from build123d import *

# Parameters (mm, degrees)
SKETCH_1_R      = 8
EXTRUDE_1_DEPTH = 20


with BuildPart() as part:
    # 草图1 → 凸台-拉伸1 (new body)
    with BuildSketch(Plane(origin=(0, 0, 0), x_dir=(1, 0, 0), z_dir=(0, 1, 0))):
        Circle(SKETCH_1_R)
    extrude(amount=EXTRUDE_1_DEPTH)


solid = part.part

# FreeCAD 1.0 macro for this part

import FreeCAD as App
import Part
import Sketcher

V = App.Vector
Q = App.Units.Quantity

doc = App.newDocument("Part")
body = doc.addObject("PartDesign::Body", "Body")

# Sketch on XZ plane
sketch1 = doc.addObject("Sketcher::SketchObject", "Sketch")
body.addObject(sketch1)
sketch1.AttachmentSupport = (doc.XZ_Plane, [""])
sketch1.MapMode = "FlatFace"
sketch1.addGeometry(Part.Circle(V(0, 0, 0), V(0, 0, 1), 8), False)
sketch1.addConstraint([
    Sketcher.Constraint("Coincident", 0, 3, -1, 1),
    Sketcher.Constraint("Diameter", 0, Q("16 mm")),
])
pad1 = doc.addObject("PartDesign::Pad", "Pad")
body.addObject(pad1)
pad1.Profile = sketch1
pad1.Length = 20
pad1.Reversed = True

doc.recompute()
